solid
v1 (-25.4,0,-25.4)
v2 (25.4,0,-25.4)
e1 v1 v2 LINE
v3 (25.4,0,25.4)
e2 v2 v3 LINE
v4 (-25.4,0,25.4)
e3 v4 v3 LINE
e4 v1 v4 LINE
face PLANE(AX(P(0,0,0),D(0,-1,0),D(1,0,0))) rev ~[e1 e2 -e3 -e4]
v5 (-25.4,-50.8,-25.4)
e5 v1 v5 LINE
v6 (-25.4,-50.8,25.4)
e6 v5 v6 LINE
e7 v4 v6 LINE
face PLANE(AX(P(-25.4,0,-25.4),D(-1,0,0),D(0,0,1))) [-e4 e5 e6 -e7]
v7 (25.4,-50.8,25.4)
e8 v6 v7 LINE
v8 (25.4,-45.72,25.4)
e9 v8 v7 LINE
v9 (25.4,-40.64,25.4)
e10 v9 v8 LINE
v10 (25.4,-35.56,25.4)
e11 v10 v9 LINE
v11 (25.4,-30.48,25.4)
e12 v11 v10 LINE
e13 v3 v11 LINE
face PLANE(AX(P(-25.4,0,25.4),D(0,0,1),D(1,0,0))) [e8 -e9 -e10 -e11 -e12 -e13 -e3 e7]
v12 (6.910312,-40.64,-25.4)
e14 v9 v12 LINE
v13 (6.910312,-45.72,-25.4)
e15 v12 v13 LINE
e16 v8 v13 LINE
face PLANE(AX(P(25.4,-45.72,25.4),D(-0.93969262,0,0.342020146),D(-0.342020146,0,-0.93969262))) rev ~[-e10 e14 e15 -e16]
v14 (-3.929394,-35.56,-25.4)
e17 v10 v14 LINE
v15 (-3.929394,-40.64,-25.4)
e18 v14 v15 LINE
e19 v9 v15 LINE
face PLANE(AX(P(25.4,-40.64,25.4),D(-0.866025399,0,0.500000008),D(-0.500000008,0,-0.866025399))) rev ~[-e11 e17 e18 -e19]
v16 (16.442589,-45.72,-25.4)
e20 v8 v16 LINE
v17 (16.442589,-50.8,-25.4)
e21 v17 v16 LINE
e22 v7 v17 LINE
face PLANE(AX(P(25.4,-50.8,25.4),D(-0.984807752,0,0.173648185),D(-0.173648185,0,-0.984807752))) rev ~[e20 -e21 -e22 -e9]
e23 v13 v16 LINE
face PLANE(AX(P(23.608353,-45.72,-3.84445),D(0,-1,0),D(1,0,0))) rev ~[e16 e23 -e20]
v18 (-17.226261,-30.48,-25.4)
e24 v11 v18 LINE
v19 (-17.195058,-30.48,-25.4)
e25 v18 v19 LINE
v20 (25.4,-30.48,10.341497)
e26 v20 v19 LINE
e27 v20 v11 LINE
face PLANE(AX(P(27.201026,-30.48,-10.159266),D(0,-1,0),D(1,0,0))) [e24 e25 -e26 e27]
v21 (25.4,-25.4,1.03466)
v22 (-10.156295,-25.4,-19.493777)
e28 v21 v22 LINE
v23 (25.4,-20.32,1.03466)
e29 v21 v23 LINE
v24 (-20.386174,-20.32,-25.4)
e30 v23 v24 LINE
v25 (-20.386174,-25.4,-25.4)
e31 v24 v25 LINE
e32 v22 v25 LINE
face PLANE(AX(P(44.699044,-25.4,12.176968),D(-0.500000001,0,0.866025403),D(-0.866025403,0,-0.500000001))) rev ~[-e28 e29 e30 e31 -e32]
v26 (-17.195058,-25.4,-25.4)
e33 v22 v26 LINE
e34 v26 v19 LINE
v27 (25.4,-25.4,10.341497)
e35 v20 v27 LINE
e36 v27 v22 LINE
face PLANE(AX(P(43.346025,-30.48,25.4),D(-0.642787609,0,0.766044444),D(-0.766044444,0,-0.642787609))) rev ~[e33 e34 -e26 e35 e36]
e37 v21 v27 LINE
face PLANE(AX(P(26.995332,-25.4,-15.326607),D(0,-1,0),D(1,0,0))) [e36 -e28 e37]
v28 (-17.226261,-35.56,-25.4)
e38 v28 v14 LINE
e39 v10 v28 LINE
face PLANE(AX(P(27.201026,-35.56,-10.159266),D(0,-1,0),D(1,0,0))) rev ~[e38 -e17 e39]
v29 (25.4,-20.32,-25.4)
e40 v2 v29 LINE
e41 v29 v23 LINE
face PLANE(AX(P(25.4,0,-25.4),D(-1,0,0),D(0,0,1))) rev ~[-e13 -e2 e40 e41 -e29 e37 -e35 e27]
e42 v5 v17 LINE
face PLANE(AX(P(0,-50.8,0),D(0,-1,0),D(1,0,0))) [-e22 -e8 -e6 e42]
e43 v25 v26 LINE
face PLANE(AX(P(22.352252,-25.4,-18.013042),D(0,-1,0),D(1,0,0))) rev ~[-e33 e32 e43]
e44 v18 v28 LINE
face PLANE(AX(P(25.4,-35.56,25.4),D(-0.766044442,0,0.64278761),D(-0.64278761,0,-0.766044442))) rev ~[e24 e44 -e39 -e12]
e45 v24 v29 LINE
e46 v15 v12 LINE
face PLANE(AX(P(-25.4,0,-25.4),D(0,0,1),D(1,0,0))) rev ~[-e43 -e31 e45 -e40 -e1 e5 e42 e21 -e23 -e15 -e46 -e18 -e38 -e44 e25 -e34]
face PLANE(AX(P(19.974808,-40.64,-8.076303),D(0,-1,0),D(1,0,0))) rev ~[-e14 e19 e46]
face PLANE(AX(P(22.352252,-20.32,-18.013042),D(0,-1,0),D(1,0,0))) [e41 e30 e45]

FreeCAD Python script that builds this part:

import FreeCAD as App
import Part
import Sketcher
Q = App.Units.Quantity


def add_polygon(sketch, points):
    """Adds a closed chain of lines whose ends are joined by coincident constraints."""
    first, n = sketch.GeometryCount, len(points)
    for a, b in zip(points, points[1:] + points[:1]):
        sketch.addGeometry(Part.LineSegment(App.Vector(*a, 0), App.Vector(*b, 0)), False)
    for i in range(n):
        sketch.addConstraint(Sketcher.Constraint("Coincident", first + i, 2, first + (i + 1) % n, 1))

doc = App.newDocument("Part")
body = doc.addObject("PartDesign::Body", "Body")

# Sketch on XZ plane
sketch1 = doc.addObject("Sketcher::SketchObject", "Sketch")
body.addObject(sketch1)
sketch1.AttachmentSupport = (doc.XZ_Plane, [""])
sketch1.MapMode = "FlatFace"
add_polygon(sketch1, [(-25, 25), (-25, -25), (25, -25), (25, 25)])  # lines 0-3
sketch1.addConstraint([
    Sketcher.Constraint("Vertical", 0),
    Sketcher.Constraint("Horizontal", 1),
    Sketcher.Constraint("Vertical", 2),
    Sketcher.Constraint("Horizontal", 3),
    Sketcher.Constraint("Symmetric", 0, 2, 2, 2, -1, 1),
    Sketcher.Constraint("Equal", 3, 0),
    Sketcher.Constraint("DistanceX", 1, 1, 1, 2, Q("2 in")),
])
pad1 = doc.addObject("PartDesign::Pad", "Pad")
body.addObject(pad1)
pad1.Profile = sketch1
pad1.Length = Q("2 in")

# Sketch on XZ plane
sketch2 = doc.addObject("Sketcher::SketchObject", "Sketch001")
body.addObject(sketch2)
sketch2.AttachmentSupport = (doc.XZ_Plane, [""])
sketch2.MapMode = "FlatFace"
sketch2.AttachmentOffset = App.Placement(App.Vector(0, 0, 2 * 25.4), App.Rotation())
add_polygon(sketch2, [(31, 25), (25, 25), (16, -25), (31, -25)])  # lines 0-3
sketch2.addConstraint([
    Sketcher.Constraint("Horizontal", 0),
    Sketcher.Constraint("Horizontal", 2),
    Sketcher.Constraint("Vertical", 3),
    Sketcher.Constraint("DistanceY", 3, 1, 3, 2, Q("2 in")),
    Sketcher.Constraint("DistanceX", -1, 1, 0, 2, Q("1 in")),
    Sketcher.Constraint("DistanceY", -1, 1, 0, 2, Q("1 in")),
    Sketcher.Constraint("Angle", 1, Q("-100 deg")),
    Sketcher.Constraint("DistanceX", 0, 2, 0, 1, Q("5.607338 mm")),
])
pocket1 = doc.addObject("PartDesign::Pocket", "Pocket")
body.addObject(pocket1)
pocket1.Profile = sketch2
pocket1.Length = Q("0.2 in")

# Sketch on XZ plane
sketch3 = doc.addObject("Sketcher::SketchObject", "Sketch002")
body.addObject(sketch3)
sketch3.AttachmentSupport = (doc.XZ_Plane, [""])
sketch3.MapMode = "FlatFace"
sketch3.AttachmentOffset = App.Placement(App.Vector(0, 0, 1.8 * 25.4), App.Rotation())
add_polygon(sketch3, [(33, 25), (25, 25), (7, -26), (33, -26)])  # lines 0-3
sketch3.addConstraint([
    Sketcher.Constraint("Horizontal", 0),
    Sketcher.Constraint("Horizontal", 2),
    Sketcher.Constraint("Vertical", 3),
    Sketcher.Constraint("DistanceX", -1, 1, 0, 2, Q("1 in")),
    Sketcher.Constraint("DistanceY", -1, 1, 0, 2, Q("1 in")),
    Sketcher.Constraint("Angle", 1, Q("-110 deg")),
    Sketcher.Constraint("Distance", 1, Q("54.89041 mm")),
    Sketcher.Constraint("DistanceX", 0, 2, 0, 1, Q("7.458667 mm")),
])
pocket2 = doc.addObject("PartDesign::Pocket", "Pocket001")
body.addObject(pocket2)
pocket2.Profile = sketch3
pocket2.Length = Q("0.2 in")

# Sketch on XZ plane
sketch4 = doc.addObject("Sketcher::SketchObject", "Sketch003")
body.addObject(sketch4)
sketch4.AttachmentSupport = (doc.XZ_Plane, [""])
sketch4.MapMode = "FlatFace"
sketch4.AttachmentOffset = App.Placement(App.Vector(0, 0, 1.6 * 25.4), App.Rotation())
add_polygon(sketch4, [(35, 25), (25, 25), (-7, -31), (35, -31)])  # lines 0-3
sketch4.addConstraint([
    Sketcher.Constraint("Horizontal", 0),
    Sketcher.Constraint("Horizontal", 2),
    Sketcher.Constraint("Vertical", 3),
    Sketcher.Constraint("DistanceX", -1, 1, 0, 2, Q("1 in")),
    Sketcher.Constraint("DistanceY", -1, 1, 0, 2, Q("1 in")),
    Sketcher.Constraint("Angle", 1, Q("-120.000001 deg")),
    Sketcher.Constraint("DistanceX", 2, 1, 2, 2, Q("42.33823 mm")),
    Sketcher.Constraint("DistanceY", 3, 1, 3, 2, Q("56.381159 mm")),
])
pocket3 = doc.addObject("PartDesign::Pocket", "Pocket002")
body.addObject(pocket3)
pocket3.Profile = sketch4
pocket3.Length = Q("0.2 in")

# Sketch on XZ plane
sketch5 = doc.addObject("Sketcher::SketchObject", "Sketch004")
body.addObject(sketch5)
sketch5.AttachmentSupport = (doc.XZ_Plane, [""])
sketch5.MapMode = "FlatFace"
sketch5.AttachmentOffset = App.Placement(App.Vector(0, 0, 1.4 * 25.4), App.Rotation())
add_polygon(sketch5, [(63, 25), (25, 25), (-25, -34), (63, -34)])  # lines 0-3
sketch5.addConstraint([
    Sketcher.Constraint("Horizontal", 0),
    Sketcher.Constraint("Horizontal", 2),
    Sketcher.Constraint("Vertical", 3),
    Sketcher.Constraint("DistanceX", -1, 1, 0, 2, Q("1 in")),
    Sketcher.Constraint("DistanceY", -1, 1, 0, 2, Q("1 in")),
    Sketcher.Constraint("Angle", 1, Q("-130 deg")),
    Sketcher.Constraint("DistanceX", 0, 2, 0, 1, Q("37.793578 mm")),
    Sketcher.Constraint("DistanceY", 3, 1, 3, 2, Q("59.748919 mm")),
])
pocket4 = doc.addObject("PartDesign::Pocket", "Pocket003")
body.addObject(pocket4)
pocket4.Profile = sketch5
pocket4.Length = Q("0.2 in")

# Sketch on XZ plane
sketch6 = doc.addObject("Sketcher::SketchObject", "Sketch005")
body.addObject(sketch6)
sketch6.AttachmentSupport = (doc.XZ_Plane, [""])
sketch6.MapMode = "FlatFace"
sketch6.AttachmentOffset = App.Placement(App.Vector(0, 0, 1.2 * 25.4), App.Rotation())
add_polygon(sketch6, [(67, 25), (43, 25), (-33, -39), (67, -39)])  # lines 0-3
sketch6.addConstraint([
    Sketcher.Constraint("Horizontal", 0),
    Sketcher.Constraint("Horizontal", 2),
    Sketcher.Constraint("Vertical", 3),
    Sketcher.Constraint("DistanceY", -1, 1, 0, 2, Q("1 in")),
    Sketcher.Constraint("Angle", 1, Q("-140 deg")),
    Sketcher.Constraint("DistanceX", 2, 1, 2, 2, Q("100.178242 mm")),
    Sketcher.Constraint("DistanceY", 3, 1, 3, 2, Q("64.333151 mm")),
    Sketcher.Constraint("DistanceX", 1, 2, -1, 1, Q("33.323239 mm")),
])
pocket5 = doc.addObject("PartDesign::Pocket", "Pocket004")
body.addObject(pocket5)
pocket5.Profile = sketch6
pocket5.Length = Q("0.2 in")

# Sketch on XZ plane
sketch7 = doc.addObject("Sketcher::SketchObject", "Sketch006")
body.addObject(sketch7)
sketch7.AttachmentSupport = (doc.XZ_Plane, [""])
sketch7.MapMode = "FlatFace"
sketch7.AttachmentOffset = App.Placement(App.Vector(0, 0, 1 * 25.4), App.Rotation())
add_polygon(sketch7, [(63, 12), (45, 12), (-35, -34), (63, -34)])  # lines 0-3
sketch7.addConstraint([
    Sketcher.Constraint("Horizontal", 0),
    Sketcher.Constraint("Horizontal", 2),
    Sketcher.Constraint("Vertical", 3),
    Sketcher.Constraint("Angle", 1, Q("-150 deg")),
    Sketcher.Constraint("DistanceY", 3, 1, 3, 2, Q("45.957301 mm")),
    Sketcher.Constraint("DistanceX", -1, 1, 2, 2, Q("62.784301 mm")),
    Sketcher.Constraint("DistanceX", 0, 2, 0, 1, Q("18.085257 mm")),
    Sketcher.Constraint("DistanceY", -1, 1, 0, 2, Q("12.176968 mm")),
])
pocket6 = doc.addObject("PartDesign::Pocket", "Pocket005")
body.addObject(pocket6)
pocket6.Profile = sketch7
pocket6.Length = Q("0.2 in")

doc.recompute()
